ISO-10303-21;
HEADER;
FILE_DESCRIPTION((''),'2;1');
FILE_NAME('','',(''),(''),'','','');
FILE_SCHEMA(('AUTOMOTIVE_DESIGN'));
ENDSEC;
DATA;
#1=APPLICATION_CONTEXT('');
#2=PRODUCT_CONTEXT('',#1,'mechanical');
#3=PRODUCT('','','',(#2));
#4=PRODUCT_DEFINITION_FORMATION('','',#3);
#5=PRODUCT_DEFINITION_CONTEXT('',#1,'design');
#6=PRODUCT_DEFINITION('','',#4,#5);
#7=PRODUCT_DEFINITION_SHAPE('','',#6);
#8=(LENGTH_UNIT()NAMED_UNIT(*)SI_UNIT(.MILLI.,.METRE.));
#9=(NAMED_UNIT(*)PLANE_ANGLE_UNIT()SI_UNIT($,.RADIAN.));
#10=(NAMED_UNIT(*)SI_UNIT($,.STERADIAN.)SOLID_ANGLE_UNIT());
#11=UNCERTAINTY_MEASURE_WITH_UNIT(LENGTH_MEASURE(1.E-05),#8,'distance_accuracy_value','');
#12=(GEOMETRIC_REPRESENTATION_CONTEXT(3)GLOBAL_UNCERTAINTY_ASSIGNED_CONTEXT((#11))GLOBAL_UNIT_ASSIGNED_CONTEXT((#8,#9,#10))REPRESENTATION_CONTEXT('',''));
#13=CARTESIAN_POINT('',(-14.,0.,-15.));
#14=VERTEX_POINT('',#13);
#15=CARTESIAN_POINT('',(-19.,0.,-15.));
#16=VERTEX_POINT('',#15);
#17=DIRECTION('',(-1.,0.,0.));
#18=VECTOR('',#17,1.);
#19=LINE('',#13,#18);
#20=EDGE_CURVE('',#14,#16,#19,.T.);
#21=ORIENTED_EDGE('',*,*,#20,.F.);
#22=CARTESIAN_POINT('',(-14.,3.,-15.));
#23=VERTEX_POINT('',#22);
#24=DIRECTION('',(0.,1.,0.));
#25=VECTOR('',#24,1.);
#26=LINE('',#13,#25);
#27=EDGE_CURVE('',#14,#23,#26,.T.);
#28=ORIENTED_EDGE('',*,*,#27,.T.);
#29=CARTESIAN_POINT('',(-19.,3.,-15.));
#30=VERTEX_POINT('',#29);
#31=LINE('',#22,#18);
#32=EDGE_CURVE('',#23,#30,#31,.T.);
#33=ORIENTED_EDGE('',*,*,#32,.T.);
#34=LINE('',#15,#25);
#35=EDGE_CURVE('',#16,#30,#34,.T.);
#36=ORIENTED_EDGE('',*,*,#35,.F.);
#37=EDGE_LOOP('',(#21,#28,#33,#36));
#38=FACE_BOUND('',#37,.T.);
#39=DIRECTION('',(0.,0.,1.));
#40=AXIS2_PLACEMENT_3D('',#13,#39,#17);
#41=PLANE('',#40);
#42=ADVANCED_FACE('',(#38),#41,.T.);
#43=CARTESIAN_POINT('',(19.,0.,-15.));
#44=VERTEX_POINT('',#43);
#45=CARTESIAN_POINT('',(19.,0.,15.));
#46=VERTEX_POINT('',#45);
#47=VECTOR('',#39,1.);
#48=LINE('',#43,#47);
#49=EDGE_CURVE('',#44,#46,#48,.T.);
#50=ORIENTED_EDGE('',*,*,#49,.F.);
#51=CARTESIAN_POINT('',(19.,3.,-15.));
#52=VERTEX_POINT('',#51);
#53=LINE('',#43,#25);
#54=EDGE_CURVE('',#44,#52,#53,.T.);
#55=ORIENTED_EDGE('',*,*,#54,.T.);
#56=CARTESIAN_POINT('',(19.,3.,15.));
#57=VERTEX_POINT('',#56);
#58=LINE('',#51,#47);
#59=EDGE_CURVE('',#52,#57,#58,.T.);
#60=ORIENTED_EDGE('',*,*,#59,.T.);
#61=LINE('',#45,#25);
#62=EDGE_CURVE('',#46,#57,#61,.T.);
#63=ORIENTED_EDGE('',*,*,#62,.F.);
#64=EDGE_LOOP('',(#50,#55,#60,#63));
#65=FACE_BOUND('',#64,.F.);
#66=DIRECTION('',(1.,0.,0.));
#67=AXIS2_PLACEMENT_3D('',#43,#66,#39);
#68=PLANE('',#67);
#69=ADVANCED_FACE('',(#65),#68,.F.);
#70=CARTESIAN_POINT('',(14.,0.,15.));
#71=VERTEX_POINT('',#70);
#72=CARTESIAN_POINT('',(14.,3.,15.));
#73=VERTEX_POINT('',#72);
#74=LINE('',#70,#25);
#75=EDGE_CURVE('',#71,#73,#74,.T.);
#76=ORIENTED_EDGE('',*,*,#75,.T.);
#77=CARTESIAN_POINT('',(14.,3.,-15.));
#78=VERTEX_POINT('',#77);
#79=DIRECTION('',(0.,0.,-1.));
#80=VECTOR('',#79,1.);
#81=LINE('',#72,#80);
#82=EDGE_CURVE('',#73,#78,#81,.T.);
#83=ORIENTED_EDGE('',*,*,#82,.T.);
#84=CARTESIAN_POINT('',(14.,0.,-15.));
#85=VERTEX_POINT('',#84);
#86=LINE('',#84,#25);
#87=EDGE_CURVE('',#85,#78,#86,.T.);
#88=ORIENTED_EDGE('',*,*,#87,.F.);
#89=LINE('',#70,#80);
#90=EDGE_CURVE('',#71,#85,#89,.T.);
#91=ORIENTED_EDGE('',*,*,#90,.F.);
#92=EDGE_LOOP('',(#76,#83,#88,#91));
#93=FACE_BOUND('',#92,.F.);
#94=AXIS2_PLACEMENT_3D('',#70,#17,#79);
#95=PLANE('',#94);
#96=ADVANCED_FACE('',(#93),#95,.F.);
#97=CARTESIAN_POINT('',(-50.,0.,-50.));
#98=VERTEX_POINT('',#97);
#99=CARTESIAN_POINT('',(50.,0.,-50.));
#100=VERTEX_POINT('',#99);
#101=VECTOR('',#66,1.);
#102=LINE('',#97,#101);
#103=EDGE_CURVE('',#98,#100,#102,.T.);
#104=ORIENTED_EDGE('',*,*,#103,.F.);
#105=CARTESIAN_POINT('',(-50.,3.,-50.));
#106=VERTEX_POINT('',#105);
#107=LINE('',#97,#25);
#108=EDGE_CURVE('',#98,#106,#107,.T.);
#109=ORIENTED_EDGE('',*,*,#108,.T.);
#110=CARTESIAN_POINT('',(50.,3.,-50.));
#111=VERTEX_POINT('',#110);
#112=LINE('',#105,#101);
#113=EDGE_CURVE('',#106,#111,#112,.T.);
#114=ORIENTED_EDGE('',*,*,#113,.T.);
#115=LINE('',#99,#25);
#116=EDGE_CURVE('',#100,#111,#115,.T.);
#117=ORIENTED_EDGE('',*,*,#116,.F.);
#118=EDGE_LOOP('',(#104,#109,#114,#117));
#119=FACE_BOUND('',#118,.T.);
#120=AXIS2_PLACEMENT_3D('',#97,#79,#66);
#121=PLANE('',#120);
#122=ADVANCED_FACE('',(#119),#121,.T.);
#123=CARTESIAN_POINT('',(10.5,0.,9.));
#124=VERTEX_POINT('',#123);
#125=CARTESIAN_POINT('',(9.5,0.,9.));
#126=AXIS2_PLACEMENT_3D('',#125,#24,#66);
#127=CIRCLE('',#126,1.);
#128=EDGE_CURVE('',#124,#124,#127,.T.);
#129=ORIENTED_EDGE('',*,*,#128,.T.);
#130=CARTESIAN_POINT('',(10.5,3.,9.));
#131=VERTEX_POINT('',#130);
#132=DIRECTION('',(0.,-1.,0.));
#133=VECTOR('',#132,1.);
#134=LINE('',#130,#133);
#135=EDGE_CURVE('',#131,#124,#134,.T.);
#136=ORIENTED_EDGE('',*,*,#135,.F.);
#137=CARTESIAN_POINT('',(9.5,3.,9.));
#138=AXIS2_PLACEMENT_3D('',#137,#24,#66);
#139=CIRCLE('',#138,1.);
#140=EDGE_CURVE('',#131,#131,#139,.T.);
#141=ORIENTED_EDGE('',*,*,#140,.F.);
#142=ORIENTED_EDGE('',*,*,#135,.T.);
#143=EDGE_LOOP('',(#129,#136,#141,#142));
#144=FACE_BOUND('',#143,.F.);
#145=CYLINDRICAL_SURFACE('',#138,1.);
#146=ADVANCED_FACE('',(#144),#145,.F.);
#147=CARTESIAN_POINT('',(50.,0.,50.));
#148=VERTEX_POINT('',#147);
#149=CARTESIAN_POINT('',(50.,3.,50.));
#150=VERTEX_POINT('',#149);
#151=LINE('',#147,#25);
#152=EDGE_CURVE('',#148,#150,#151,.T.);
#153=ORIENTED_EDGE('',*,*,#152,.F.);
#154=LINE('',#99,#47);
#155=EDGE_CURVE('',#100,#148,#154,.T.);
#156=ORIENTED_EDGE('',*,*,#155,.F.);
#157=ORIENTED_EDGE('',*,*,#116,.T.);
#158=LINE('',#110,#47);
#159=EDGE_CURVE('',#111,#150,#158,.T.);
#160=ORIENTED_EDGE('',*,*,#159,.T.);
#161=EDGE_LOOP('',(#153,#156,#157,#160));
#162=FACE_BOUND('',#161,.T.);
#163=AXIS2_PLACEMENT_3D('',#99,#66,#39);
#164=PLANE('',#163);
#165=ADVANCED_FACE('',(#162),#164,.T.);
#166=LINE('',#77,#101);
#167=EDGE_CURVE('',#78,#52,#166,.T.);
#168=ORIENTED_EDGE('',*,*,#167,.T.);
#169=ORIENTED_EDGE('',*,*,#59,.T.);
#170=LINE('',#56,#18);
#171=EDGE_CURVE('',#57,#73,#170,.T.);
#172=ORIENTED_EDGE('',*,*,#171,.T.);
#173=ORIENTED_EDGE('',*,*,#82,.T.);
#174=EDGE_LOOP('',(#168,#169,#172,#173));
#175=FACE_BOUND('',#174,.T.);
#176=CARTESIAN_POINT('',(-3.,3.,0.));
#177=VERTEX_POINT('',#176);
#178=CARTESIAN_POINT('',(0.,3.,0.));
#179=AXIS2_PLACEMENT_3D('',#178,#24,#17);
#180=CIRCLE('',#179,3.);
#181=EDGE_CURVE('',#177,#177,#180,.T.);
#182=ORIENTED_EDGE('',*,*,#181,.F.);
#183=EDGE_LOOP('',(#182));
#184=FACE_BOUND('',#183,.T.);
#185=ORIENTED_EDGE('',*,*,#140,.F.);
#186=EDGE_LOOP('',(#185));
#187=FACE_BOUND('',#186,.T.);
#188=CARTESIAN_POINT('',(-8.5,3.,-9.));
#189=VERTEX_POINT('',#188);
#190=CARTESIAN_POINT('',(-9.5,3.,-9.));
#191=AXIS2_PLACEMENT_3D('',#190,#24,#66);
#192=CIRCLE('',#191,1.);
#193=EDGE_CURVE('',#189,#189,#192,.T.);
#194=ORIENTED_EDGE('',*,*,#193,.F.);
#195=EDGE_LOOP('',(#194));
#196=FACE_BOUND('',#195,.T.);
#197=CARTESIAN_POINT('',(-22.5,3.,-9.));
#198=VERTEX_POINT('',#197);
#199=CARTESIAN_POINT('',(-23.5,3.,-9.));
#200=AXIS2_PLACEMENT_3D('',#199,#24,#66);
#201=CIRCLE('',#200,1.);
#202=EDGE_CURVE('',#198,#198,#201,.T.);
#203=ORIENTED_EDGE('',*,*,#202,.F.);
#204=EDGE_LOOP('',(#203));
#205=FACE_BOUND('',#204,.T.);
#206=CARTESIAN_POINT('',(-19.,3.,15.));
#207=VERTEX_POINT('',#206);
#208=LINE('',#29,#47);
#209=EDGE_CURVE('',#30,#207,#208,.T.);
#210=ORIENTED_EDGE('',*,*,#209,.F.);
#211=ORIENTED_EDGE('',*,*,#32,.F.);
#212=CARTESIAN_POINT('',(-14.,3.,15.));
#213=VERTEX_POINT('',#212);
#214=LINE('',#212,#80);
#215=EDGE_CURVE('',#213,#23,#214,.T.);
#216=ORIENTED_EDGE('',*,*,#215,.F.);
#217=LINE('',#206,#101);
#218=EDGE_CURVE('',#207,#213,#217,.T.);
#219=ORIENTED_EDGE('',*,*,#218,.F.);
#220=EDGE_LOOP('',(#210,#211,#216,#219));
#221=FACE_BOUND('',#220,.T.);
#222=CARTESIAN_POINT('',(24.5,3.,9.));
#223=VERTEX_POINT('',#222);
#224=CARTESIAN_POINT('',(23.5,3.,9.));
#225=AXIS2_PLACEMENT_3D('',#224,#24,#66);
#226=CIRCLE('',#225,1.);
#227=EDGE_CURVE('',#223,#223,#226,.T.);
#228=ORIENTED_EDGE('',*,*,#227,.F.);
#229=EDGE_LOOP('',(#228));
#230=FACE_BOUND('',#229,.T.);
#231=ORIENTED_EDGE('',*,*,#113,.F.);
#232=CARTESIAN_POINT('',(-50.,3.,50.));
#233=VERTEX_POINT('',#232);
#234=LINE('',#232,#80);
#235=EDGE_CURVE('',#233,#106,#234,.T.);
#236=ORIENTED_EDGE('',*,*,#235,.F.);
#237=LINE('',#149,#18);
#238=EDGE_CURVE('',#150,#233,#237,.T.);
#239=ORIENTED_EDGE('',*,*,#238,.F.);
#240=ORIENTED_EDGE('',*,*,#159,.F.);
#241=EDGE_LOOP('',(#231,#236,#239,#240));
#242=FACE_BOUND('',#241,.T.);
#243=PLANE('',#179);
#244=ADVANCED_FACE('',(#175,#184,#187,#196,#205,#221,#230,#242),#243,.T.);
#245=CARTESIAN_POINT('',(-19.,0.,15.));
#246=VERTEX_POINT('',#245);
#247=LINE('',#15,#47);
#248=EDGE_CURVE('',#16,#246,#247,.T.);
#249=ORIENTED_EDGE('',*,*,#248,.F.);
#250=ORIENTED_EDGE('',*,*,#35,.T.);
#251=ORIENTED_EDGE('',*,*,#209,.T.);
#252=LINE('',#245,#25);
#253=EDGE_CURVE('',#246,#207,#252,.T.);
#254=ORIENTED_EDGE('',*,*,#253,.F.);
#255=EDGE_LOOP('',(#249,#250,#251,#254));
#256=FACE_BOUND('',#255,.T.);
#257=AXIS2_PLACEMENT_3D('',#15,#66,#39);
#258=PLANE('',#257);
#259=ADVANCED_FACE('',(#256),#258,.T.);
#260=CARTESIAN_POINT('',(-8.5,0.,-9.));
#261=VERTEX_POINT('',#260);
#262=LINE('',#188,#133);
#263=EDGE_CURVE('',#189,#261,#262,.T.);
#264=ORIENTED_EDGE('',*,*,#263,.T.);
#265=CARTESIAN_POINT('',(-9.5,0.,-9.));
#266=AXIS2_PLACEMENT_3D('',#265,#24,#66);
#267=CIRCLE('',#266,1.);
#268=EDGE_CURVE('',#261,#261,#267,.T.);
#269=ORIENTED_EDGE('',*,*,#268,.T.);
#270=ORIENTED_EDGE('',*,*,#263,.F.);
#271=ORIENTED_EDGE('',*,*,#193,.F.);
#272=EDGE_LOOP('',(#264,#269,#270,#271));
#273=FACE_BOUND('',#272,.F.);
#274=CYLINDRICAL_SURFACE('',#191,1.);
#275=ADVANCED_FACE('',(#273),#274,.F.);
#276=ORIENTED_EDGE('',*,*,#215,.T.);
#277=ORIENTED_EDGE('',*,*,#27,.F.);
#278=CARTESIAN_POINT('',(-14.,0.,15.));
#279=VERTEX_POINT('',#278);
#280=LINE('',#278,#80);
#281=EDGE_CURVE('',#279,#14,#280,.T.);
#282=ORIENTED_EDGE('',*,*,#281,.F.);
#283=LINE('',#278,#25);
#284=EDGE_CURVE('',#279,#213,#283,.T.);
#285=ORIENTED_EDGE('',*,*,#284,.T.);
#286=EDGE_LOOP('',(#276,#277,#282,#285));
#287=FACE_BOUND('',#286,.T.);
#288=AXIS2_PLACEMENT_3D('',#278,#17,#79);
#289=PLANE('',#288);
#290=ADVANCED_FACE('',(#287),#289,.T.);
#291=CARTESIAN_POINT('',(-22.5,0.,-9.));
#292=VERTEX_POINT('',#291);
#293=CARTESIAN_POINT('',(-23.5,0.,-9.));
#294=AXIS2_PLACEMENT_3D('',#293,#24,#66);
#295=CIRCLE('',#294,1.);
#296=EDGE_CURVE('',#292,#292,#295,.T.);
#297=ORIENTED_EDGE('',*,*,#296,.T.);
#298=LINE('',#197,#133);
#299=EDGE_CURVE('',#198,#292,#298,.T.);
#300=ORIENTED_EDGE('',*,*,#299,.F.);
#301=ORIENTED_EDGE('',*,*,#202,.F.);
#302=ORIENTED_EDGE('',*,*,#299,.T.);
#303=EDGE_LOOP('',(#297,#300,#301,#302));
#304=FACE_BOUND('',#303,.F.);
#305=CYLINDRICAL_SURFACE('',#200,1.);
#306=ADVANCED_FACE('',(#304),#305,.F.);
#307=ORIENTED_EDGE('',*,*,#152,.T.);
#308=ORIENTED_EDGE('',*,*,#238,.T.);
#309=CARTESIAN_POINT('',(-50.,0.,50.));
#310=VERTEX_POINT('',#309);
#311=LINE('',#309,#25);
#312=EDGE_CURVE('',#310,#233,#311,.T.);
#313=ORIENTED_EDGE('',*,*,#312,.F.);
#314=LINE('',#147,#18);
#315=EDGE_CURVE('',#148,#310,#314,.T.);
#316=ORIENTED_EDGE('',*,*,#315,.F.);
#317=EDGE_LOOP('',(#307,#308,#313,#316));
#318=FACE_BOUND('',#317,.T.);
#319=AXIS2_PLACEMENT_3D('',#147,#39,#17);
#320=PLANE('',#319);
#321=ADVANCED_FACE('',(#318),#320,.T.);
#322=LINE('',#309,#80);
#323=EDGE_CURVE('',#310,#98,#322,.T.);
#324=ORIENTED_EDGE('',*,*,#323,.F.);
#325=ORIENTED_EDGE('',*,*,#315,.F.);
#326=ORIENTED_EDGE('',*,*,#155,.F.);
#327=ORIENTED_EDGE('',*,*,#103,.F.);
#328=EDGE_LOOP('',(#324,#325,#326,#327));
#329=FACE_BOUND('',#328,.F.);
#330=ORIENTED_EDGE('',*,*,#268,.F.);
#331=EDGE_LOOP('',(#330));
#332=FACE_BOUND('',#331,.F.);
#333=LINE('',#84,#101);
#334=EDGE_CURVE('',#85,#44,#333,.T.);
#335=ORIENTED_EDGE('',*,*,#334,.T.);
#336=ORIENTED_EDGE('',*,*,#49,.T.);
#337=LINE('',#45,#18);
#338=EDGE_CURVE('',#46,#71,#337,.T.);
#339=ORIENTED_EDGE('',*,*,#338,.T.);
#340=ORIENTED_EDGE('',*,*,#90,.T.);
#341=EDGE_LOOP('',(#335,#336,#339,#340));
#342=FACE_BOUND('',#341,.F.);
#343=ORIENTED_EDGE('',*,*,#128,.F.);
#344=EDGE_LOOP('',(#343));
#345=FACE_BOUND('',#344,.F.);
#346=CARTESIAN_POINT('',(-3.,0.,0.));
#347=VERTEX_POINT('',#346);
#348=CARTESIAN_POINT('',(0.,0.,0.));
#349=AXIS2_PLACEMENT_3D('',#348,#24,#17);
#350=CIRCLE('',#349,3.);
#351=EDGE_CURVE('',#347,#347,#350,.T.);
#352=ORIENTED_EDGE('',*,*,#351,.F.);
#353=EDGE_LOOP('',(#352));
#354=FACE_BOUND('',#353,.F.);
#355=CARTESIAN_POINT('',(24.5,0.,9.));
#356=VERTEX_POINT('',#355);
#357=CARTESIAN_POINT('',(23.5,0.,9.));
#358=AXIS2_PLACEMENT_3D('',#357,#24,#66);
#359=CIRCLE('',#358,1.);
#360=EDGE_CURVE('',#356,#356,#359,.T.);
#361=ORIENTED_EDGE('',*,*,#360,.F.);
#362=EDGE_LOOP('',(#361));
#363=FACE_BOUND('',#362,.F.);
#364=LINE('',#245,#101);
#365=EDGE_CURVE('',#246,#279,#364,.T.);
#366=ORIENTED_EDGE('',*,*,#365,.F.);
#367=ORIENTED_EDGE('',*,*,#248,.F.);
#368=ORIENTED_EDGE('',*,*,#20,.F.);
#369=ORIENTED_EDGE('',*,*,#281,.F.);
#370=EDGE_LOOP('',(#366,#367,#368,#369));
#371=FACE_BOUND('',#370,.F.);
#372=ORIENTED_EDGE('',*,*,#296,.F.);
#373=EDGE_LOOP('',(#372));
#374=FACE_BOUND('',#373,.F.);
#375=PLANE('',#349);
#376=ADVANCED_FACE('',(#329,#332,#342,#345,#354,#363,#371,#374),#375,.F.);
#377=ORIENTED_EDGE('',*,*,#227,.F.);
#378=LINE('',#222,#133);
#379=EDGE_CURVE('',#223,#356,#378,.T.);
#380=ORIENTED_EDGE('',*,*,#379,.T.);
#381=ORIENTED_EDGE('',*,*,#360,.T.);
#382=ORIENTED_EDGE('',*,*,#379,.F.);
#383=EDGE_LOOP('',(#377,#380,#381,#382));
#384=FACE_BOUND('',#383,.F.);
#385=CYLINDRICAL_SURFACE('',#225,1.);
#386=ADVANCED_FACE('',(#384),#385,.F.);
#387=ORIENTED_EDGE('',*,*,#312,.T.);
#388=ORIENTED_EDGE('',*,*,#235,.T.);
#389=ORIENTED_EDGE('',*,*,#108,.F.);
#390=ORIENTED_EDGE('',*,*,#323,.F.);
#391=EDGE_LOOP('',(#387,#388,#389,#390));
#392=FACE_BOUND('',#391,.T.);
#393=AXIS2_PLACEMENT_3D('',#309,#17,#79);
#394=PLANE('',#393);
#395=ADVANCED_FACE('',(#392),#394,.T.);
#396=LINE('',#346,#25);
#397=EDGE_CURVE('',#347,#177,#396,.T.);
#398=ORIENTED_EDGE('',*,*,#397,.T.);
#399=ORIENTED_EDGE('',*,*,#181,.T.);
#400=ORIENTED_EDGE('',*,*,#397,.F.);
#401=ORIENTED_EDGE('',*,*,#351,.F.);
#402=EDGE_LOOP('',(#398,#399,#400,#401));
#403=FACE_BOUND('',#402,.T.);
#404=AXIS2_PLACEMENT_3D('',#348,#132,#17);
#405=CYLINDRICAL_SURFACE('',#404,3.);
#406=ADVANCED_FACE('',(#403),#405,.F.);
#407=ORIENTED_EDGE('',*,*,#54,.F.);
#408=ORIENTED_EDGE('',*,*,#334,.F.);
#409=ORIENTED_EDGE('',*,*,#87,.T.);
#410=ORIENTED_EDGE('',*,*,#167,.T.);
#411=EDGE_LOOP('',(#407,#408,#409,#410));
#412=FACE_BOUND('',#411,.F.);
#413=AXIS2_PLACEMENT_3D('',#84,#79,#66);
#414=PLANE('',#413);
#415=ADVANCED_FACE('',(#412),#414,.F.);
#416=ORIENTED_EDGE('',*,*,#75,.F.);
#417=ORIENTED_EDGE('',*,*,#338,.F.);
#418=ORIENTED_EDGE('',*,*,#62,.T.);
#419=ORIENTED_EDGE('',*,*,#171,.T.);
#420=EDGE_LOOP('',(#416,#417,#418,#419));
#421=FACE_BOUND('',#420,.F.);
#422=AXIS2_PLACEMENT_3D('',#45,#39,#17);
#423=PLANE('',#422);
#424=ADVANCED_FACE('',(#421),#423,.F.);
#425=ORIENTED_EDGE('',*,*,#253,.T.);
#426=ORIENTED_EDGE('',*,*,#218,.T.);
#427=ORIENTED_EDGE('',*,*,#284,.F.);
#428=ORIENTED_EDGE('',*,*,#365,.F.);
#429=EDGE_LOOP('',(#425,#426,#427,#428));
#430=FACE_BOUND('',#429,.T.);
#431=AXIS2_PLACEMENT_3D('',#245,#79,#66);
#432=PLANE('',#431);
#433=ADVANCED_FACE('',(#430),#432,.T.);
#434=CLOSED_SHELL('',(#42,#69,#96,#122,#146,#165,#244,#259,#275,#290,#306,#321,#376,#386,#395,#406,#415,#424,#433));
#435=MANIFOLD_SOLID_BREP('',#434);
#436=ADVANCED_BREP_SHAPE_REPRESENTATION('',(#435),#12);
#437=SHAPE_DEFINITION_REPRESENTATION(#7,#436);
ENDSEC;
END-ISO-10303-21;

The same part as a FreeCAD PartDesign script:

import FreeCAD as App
import Part
import Sketcher

V = App.Vector
Q = App.Units.Quantity


def add_polygon(sketch, points):
    """Adds a closed chain of lines whose ends are joined by coincident constraints."""
    first, n = sketch.GeometryCount, len(points)
    for a, b in zip(points, points[1:] + points[:1]):
        sketch.addGeometry(Part.LineSegment(App.Vector(*a, 0), App.Vector(*b, 0)), False)
    for i in range(n):
        sketch.addConstraint(Sketcher.Constraint("Coincident", first + i, 2, first + (i + 1) % n, 1))

doc = App.newDocument("Part")
body = doc.addObject("PartDesign::Body", "Body")

# Sketch on XZ plane
sketch1 = body.newObject("Sketcher::SketchObject", "Sketch")
sketch1.AttachmentSupport = (doc.getObject("XZ_Plane"), [""])
sketch1.MapMode = "FlatFace"
add_polygon(sketch1, [(50, -50), (-50, -50), (-50, 50), (50, 50)])  # lines 0-3
add_polygon(sketch1, [(14, 15), (14, -15), (19, -15), (19, 15)])  # lines 4-7
sketch1.addGeometry(Part.Circle(V(0, 0, 0), V(0, 0, 1), 3), False)  # 8
add_polygon(sketch1, [(-19, -15), (-14, -15), (-14, 15), (-19, 15)])  # lines 9-12
sketch1.addConstraint(Sketcher.Constraint("Horizontal", 0))
sketch1.addConstraint(Sketcher.Constraint("Vertical", 1))
sketch1.addConstraint(Sketcher.Constraint("Horizontal", 2))
sketch1.addConstraint(Sketcher.Constraint("Vertical", 3))
sketch1.addConstraint(Sketcher.Constraint("Vertical", 4))
sketch1.addConstraint(Sketcher.Constraint("Horizontal", 5))
sketch1.addConstraint(Sketcher.Constraint("Vertical", 6))
sketch1.addConstraint(Sketcher.Constraint("Horizontal", 7))
sketch1.addConstraint(Sketcher.Constraint("Horizontal", 9))
sketch1.addConstraint(Sketcher.Constraint("Vertical", 10))
sketch1.addConstraint(Sketcher.Constraint("Horizontal", 11))
sketch1.addConstraint(Sketcher.Constraint("Vertical", 12))
sketch1.addConstraint(Sketcher.Constraint("Coincident", 8, 3, -1, 1))
sketch1.addConstraint(Sketcher.Constraint("Symmetric", 0, 2, 2, 2, -1, 1))
sketch1.addConstraint(Sketcher.Constraint("Symmetric", 7, 2, 9, 2, -1, 1))
sketch1.addConstraint(Sketcher.Constraint("Symmetric", 5, 2, 11, 2, -1, 1))
sketch1.addConstraint(Sketcher.Constraint("Horizontal", 5, 2, 9, 2))
sketch1.addConstraint(Sketcher.Constraint("Equal", 2, 1))
sketch1.addConstraint(Sketcher.Constraint("Diameter", 8, Q("6 mm")))
sketch1.addConstraint(Sketcher.Constraint("DistanceX", 0, 2, 0, 1, Q("100 mm")))
sketch1.addConstraint(Sketcher.Constraint("DistanceX", 5, 1, 5, 2, Q("5 mm")))
sketch1.addConstraint(Sketcher.Constraint("DistanceY", 4, 2, 4, 1, Q("30 mm")))
sketch1.addConstraint(Sketcher.Constraint("DistanceX", -1, 1, 4, 2, Q("14 mm")))
pad1 = body.newObject("PartDesign::Pad", "Pad")
pad1.Profile = sketch1
pad1.Length = 3
pad1.Reversed = True

# Sketch on XZ plane
sketch2 = body.newObject("Sketcher::SketchObject", "Sketch001")
sketch2.AttachmentSupport = (doc.getObject("XZ_Plane"), [""])
sketch2.MapMode = "FlatFace"
sketch2.AttachmentOffset = App.Placement(V(0, 0, -3), App.Rotation())
sketch2.addGeometry(Part.Circle(V(23.5, 9, 0), V(0, 0, 1), 1), False)
sketch2.addGeometry(Part.Circle(V(9.5, 9, 0), V(0, 0, 1), 1), False)
sketch2.addGeometry(Part.Circle(V(-9.5, -9, 0), V(0, 0, 1), 1), False)
sketch2.addGeometry(Part.Circle(V(-23.5, -9, 0), V(0, 0, 1), 1), False)
sketch2.addConstraint(Sketcher.Constraint("Equal", 0, 1))
sketch2.addConstraint(Sketcher.Constraint("Equal", 1, 2))
sketch2.addConstraint(Sketcher.Constraint("Equal", 2, 3))
sketch2.addConstraint(Sketcher.Constraint("Symmetric", 1, 3, 2, 3, -1, 1))
sketch2.addConstraint(Sketcher.Constraint("Symmetric", 0, 3, 3, 3, -1, 1))
sketch2.addConstraint(Sketcher.Constraint("Horizontal", 0, 3, 1, 3))
sketch2.addConstraint(Sketcher.Constraint("Diameter", 0, Q("2 mm")))
sketch2.addConstraint(Sketcher.Constraint("DistanceY", -1, 1, 0, 3, Q("9 mm")))
sketch2.addConstraint(Sketcher.Constraint("DistanceX", 1, 3, 0, 3, Q("14 mm")))
sketch2.addConstraint(Sketcher.Constraint("DistanceX", 2, 3, 1, 3, Q("19 mm")))
pocket1 = body.newObject("PartDesign::Pocket", "Pocket")
pocket1.Profile = sketch2
pocket1.Type = "ThroughAll"
pocket1.Reversed = True

doc.recompute()
